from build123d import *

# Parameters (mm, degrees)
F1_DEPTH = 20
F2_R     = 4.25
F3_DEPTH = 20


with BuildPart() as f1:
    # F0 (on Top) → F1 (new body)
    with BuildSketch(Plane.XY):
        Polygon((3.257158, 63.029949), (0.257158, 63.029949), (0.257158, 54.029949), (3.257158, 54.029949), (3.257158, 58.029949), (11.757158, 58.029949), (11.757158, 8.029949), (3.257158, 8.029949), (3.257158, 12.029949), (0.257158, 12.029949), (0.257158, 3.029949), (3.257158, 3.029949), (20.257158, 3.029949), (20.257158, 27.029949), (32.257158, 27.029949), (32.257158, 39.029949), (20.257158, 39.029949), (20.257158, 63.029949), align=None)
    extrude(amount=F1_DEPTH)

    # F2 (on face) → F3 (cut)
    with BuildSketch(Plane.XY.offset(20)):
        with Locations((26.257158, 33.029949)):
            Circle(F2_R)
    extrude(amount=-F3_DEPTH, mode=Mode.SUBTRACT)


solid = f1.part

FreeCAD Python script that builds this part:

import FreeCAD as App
import Part
import Sketcher


def add_polygon(sketch, points):
    """Adds a closed chain of lines whose ends are joined by coincident constraints."""
    first, n = sketch.GeometryCount, len(points)
    for a, b in zip(points, points[1:] + points[:1]):
        sketch.addGeometry(Part.LineSegment(App.Vector(*a, 0), App.Vector(*b, 0)), False)
    for i in range(n):
        sketch.addConstraint(Sketcher.Constraint("Coincident", first + i, 2, first + (i + 1) % n, 1))

doc = App.newDocument("Part")
body = doc.addObject("PartDesign::Body", "Body")

sketch1 = body.newObject("Sketcher::SketchObject", "Sketch")
sketch1.AttachmentSupport = (doc.getObject("XY_Plane"), [""])
sketch1.MapMode = "FlatFace"
add_polygon(sketch1, [(0.3, 63), (0.3, 54), (3.3, 54), (3.3, 58), (11.8, 58), (11.8, 8), (3.3, 8), (3.3, 12), (0.3, 12), (0.3, 3), (20.3, 3), (20.3, 27), (32.3, 27), (32.3, 39), (20.3, 39), (20.3, 63)])
sketch1.addConstraint([
    Sketcher.Constraint("Vertical", 0),
    Sketcher.Constraint("Horizontal", 1),
    Sketcher.Constraint("Vertical", 2),
    Sketcher.Constraint("Horizontal", 3),
    Sketcher.Constraint("Vertical", 4),
    Sketcher.Constraint("Horizontal", 5),
    Sketcher.Constraint("Vertical", 6),
    Sketcher.Constraint("Horizontal", 7),
    Sketcher.Constraint("Vertical", 8),
    Sketcher.Constraint("Horizontal", 9),
    Sketcher.Constraint("Vertical", 10),
    Sketcher.Constraint("Horizontal", 11),
    Sketcher.Constraint("Vertical", 12),
    Sketcher.Constraint("Horizontal", 13),
    Sketcher.Constraint("Vertical", 14),
    Sketcher.Constraint("Horizontal", 15),
    Sketcher.Constraint("Vertical", 2, 2, 5, 2),
    Sketcher.Constraint("Vertical", 0, 2, 7, 2),
    Sketcher.Constraint("Vertical", 10, 2, 13, 2),
    Sketcher.Constraint("Equal", 2, 6),
    Sketcher.Constraint("Equal", 0, 8),
    Sketcher.Constraint("Equal", 13, 12),
    Sketcher.Constraint("Equal", 10, 14),
    Sketcher.Constraint("DistanceX", 1, 1, 1, 2, 3.0),
    Sketcher.Constraint("DistanceX", 9, 1, 9, 2, 20.0),
    Sketcher.Constraint("DistanceX", 11, 1, 11, 2, 12.0),
    Sketcher.Constraint("DistanceY", 0, 2, 0, 1, 9.0),
    Sketcher.Constraint("DistanceY", 2, 1, 2, 2, 4.0),
    Sketcher.Constraint("DistanceY", 4, 2, 4, 1, 50.0),
    Sketcher.Constraint("DistanceX", 3, 1, 3, 2, 8.5),
    Sketcher.Constraint("DistanceY", -1, 1, 0, 2, 54.029949),
    Sketcher.Constraint("DistanceX", -1, 1, 1, 2, 3.257158),
])
pad1 = body.newObject("PartDesign::Pad", "Pad")
pad1.Profile = sketch1
pad1.Length = 20

sketch2 = body.newObject("Sketcher::SketchObject", "Sketch001")
sketch2.AttachmentSupport = (doc.getObject("XY_Plane"), [""])
sketch2.MapMode = "FlatFace"
sketch2.AttachmentOffset = App.Placement(App.Vector(0, 0, 20), App.Rotation())
sketch2.addGeometry(Part.Circle(App.Vector(26.3, 33, 0), App.Vector(0, 0, 1), 4.2), False)
sketch2.addConstraint([
    Sketcher.Constraint("Diameter", 0, 8.5),
    Sketcher.Constraint("DistanceX", -1, 1, 0, 3, 26.257158),
    Sketcher.Constraint("DistanceY", -1, 1, 0, 3, 33.029949),
])
pocket1 = body.newObject("PartDesign::Pocket", "Pocket")
pocket1.Profile = sketch2
pocket1.Length = 20

doc.recompute()
